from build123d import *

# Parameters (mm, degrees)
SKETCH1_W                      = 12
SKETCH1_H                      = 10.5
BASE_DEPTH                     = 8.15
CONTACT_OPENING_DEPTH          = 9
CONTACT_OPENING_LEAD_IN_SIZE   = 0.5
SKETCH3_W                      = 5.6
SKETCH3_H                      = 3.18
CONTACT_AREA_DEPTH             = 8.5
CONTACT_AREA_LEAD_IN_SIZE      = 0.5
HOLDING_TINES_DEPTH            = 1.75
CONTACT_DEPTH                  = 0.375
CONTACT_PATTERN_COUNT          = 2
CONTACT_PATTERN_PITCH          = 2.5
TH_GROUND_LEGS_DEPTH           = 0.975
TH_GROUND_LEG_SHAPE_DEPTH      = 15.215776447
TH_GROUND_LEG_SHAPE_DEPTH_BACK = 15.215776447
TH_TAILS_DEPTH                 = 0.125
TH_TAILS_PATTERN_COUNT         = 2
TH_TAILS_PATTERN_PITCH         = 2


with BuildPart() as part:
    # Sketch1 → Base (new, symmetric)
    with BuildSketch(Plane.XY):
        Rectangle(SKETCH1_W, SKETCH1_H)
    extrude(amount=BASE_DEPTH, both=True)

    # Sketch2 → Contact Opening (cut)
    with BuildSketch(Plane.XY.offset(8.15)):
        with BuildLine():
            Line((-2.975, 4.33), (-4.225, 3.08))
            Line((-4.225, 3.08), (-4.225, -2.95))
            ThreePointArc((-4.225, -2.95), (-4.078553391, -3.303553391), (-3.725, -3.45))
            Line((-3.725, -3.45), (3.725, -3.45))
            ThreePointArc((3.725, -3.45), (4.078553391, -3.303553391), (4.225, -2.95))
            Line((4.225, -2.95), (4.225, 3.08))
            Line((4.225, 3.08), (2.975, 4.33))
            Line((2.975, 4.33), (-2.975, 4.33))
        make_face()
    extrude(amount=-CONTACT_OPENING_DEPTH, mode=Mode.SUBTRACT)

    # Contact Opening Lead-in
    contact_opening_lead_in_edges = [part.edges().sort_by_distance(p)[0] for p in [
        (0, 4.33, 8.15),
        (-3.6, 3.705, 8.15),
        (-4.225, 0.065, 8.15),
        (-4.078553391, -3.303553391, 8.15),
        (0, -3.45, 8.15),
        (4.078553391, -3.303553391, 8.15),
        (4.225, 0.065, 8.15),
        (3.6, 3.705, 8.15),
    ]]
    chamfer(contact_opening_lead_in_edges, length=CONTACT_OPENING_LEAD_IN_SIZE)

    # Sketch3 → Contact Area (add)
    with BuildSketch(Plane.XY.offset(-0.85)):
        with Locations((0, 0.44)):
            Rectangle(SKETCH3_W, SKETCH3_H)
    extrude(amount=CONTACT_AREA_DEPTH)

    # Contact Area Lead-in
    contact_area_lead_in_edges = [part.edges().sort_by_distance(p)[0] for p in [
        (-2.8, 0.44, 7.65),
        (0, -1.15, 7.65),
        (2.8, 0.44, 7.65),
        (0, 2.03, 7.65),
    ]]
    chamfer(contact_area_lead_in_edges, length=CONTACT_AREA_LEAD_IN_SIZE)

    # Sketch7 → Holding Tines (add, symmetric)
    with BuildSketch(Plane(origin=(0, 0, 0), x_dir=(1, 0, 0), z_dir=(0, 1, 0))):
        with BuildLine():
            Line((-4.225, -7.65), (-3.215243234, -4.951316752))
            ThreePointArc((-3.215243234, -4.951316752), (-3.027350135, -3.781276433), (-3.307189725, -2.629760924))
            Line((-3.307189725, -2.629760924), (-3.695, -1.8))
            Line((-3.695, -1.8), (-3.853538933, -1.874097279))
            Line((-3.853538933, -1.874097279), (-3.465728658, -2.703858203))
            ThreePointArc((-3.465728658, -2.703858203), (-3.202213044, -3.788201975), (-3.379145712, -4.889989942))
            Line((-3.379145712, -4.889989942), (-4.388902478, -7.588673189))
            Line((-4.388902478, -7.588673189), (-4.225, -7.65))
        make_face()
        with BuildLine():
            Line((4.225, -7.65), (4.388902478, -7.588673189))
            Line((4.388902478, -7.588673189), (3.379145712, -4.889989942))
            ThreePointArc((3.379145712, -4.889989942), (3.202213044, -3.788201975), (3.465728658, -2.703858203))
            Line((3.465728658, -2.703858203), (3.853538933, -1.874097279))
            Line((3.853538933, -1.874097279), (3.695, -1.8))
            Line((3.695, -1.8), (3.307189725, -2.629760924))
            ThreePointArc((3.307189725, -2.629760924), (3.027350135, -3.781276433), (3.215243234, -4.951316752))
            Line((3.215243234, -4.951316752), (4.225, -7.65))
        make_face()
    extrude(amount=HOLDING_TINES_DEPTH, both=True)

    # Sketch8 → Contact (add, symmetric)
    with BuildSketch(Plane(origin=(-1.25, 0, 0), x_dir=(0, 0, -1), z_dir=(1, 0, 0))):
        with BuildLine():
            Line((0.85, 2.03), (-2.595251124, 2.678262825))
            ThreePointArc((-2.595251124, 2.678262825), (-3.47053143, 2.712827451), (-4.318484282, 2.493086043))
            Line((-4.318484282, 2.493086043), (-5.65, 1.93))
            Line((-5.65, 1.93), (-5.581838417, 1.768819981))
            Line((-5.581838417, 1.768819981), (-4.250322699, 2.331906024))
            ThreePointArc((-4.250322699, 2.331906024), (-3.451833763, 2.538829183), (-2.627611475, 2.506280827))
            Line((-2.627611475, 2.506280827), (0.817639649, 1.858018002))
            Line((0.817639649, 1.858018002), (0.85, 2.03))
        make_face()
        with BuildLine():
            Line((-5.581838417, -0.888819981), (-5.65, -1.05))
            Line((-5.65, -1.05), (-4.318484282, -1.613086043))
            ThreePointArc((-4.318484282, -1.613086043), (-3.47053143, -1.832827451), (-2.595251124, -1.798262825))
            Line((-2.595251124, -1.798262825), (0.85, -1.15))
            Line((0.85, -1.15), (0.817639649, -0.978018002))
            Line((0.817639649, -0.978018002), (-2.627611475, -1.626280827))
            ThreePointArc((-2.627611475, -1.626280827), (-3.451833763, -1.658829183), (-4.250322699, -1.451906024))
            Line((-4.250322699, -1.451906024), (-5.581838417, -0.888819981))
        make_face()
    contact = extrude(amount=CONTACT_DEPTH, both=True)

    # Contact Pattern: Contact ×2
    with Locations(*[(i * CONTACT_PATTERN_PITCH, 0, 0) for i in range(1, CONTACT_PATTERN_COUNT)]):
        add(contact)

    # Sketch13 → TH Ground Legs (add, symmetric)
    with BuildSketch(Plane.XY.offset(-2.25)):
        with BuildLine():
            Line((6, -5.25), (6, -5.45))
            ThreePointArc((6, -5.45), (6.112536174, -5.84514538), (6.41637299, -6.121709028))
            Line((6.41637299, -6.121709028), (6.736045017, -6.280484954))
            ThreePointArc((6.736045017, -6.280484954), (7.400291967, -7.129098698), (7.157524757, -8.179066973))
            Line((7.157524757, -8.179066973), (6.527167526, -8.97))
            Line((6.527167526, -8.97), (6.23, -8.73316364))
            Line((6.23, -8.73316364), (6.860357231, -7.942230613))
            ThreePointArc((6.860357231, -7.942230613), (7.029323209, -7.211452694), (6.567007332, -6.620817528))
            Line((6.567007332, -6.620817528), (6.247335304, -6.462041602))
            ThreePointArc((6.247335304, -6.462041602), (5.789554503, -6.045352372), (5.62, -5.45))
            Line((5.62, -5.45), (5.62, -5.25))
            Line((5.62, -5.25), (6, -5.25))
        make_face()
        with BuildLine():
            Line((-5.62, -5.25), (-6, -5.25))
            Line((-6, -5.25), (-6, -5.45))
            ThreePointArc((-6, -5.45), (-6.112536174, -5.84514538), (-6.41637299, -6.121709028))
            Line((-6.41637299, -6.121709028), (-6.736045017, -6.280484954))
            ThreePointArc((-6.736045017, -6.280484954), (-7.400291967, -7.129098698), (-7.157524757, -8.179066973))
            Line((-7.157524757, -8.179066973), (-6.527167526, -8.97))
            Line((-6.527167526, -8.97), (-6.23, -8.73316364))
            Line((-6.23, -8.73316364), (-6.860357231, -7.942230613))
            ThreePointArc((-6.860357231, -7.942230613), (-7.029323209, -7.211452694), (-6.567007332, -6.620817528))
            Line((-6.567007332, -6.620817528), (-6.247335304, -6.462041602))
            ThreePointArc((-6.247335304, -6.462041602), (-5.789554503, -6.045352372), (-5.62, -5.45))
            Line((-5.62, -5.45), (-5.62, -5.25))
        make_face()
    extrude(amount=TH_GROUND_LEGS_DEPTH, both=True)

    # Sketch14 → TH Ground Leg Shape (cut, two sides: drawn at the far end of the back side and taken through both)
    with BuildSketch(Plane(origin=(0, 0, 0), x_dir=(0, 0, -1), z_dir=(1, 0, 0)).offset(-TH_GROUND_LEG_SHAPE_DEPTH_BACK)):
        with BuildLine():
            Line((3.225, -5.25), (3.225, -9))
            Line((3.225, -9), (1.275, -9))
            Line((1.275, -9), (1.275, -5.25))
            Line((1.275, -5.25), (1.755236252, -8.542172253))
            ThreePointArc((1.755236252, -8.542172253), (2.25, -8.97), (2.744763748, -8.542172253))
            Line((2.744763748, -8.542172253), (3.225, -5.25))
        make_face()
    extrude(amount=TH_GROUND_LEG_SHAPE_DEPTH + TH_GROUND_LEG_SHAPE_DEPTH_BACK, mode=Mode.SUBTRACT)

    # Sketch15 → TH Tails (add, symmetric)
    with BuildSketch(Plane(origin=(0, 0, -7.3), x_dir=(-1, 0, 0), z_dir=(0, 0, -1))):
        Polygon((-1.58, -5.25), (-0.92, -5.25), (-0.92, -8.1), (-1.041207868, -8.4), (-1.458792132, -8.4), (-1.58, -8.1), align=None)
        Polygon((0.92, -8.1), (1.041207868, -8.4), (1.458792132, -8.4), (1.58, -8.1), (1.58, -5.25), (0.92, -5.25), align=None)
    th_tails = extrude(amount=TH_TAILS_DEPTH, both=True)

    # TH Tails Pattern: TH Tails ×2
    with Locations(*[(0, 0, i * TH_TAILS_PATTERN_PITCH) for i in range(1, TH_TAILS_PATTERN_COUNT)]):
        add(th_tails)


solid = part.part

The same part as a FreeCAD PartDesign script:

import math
import FreeCAD as App
import Part
import Sketcher
from FreeCAD import Vector
Q = App.Units.Quantity


def edges_at(feature, points):
    """Names of the edges that pass closest to the given points."""
    edges = feature.Shape.Edges
    near = lambda p: min(range(len(edges)), key=lambda i: edges[i].distToShape(Part.Vertex(*p))[0])
    return sorted({f"Edge{near(p) + 1}" for p in points})


def add_polygon(sketch, points):
    """Adds a closed chain of lines whose ends are joined by coincident constraints."""
    first, n = sketch.GeometryCount, len(points)
    for a, b in zip(points, points[1:] + points[:1]):
        sketch.addGeometry(Part.LineSegment(App.Vector(*a, 0), App.Vector(*b, 0)), False)
    for i in range(n):
        sketch.addConstraint(Sketcher.Constraint("Coincident", first + i, 2, first + (i + 1) % n, 1))

doc = App.newDocument("Part")
body = doc.addObject("PartDesign::Body", "Body")

# Sketch on XY plane
sketch1 = body.newObject("Sketcher::SketchObject", "Sketch")
sketch1.AttachmentSupport = (doc.getObject("XY_Plane"), [""])
sketch1.MapMode = "FlatFace"
add_polygon(sketch1, [(-6, 5), (-6, -5), (6, -5), (6, 5)])  # lines 0-3
sketch1.addConstraint([
    Sketcher.Constraint("Vertical", 0),
    Sketcher.Constraint("Horizontal", 1),
    Sketcher.Constraint("Vertical", 2),
    Sketcher.Constraint("Horizontal", 3),
    Sketcher.Constraint("Symmetric", 0, 2, 2, 2, -1, 1),
    Sketcher.Constraint("DistanceX", 1, 1, 1, 2, Q("12 mm")),
    Sketcher.Constraint("DistanceY", 0, 2, 0, 1, Q("10.5 mm")),
])
pad1 = body.newObject("PartDesign::Pad", "Pad")
pad1.Profile = sketch1
pad1.Length = 16.3
pad1.Midplane = True

# Sketch on XY plane
sketch2 = body.newObject("Sketcher::SketchObject", "Sketch001")
sketch2.AttachmentSupport = (doc.getObject("XY_Plane"), [""])
sketch2.MapMode = "FlatFace"
sketch2.AttachmentOffset = App.Placement(Vector(0, 0, 8.15), App.Rotation())
sketch2.addGeometry([
    Part.LineSegment(Vector(-2.98, 4.33, 0), Vector(-4.22, 3.08, 0)),  # 0
    Part.LineSegment(Vector(-4.22, 3.08, 0), Vector(-4.22, -2.95, 0)),  # 1
    Part.ArcOfCircle(Part.Circle(Vector(-3.73, -2.95, 0), Vector(0, 0, 1), 0.5), math.radians(180), math.radians(270)),  # 2
    Part.LineSegment(Vector(-3.73, -3.45, 0), Vector(3.73, -3.45, 0)),  # 3
    Part.ArcOfCircle(Part.Circle(Vector(3.73, -2.95, 0), Vector(0, 0, 1), 0.5), math.radians(-90), math.radians(0)),  # 4
    Part.LineSegment(Vector(4.22, -2.95, 0), Vector(4.22, 3.08, 0)),  # 5
    Part.LineSegment(Vector(4.22, 3.08, 0), Vector(2.98, 4.33, 0)),  # 6
    Part.LineSegment(Vector(2.98, 4.33, 0), Vector(-2.98, 4.33, 0)),  # 7
], False)
sketch2.addConstraint([
    Sketcher.Constraint("Coincident", 0, 2, 1, 1),
    Sketcher.Constraint("Tangent", 1, 2, 2, 1),
    Sketcher.Constraint("Tangent", 2, 2, 3, 1),
    Sketcher.Constraint("Tangent", 3, 2, 4, 1),
    Sketcher.Constraint("Tangent", 4, 2, 5, 1),
    Sketcher.Constraint("Coincident", 5, 2, 6, 1),
    Sketcher.Constraint("Coincident", 6, 2, 7, 1),
    Sketcher.Constraint("Coincident", 7, 2, 0, 1),
    Sketcher.Constraint("Vertical", 1),
    Sketcher.Constraint("Horizontal", 3),
    Sketcher.Constraint("Vertical", 5),
    Sketcher.Constraint("Horizontal", 7),
    Sketcher.Constraint("Equal", 2, 4),
    Sketcher.Constraint("Symmetric", 0, 2, 5, 2, -2),
    Sketcher.Constraint("Perpendicular", 0, 6),
    Sketcher.Constraint("Equal", 0, 6),
    Sketcher.Constraint("Radius", 2, Q("0.5 mm")),
    Sketcher.Constraint("DistanceX", 3, 1, 3, 2, Q("7.45 mm")),
    Sketcher.Constraint("DistanceX", 7, 2, 7, 1, Q("5.95 mm")),
    Sketcher.Constraint("DistanceY", 1, 2, 1, 1, Q("6.03 mm")),
    Sketcher.Constraint("DistanceY", 2, 3, -1, 1, Q("2.95 mm")),
])
pocket1 = body.newObject("PartDesign::Pocket", "Pocket")
pocket1.Profile = sketch2
pocket1.Length = 9
doc.recompute()

chamfer = body.newObject("PartDesign::Chamfer", "Chamfer")
chamfer.Base = (pocket1, edges_at(pocket1, [
    (0, 4.33, 8.15),
    (-3.6, 3.705, 8.15),
    (-4.225, 0.065, 8.15),
    (-4.079, -3.304, 8.15),
    (0, -3.45, 8.15),
    (4.079, -3.304, 8.15),
    (4.225, 0.065, 8.15),
    (3.6, 3.705, 8.15),
]))
chamfer.Size = 0.5

# Sketch on XY plane
sketch3 = body.newObject("Sketcher::SketchObject", "Sketch002")
sketch3.AttachmentSupport = (doc.getObject("XY_Plane"), [""])
sketch3.MapMode = "FlatFace"
sketch3.AttachmentOffset = App.Placement(Vector(0, 0, -0.85), App.Rotation())
add_polygon(sketch3, [(-2.8, 2), (-2.8, -1.1), (2.8, -1.1), (2.8, 2)])  # lines 0-3
sketch3.addConstraint([
    Sketcher.Constraint("Vertical", 0),
    Sketcher.Constraint("Horizontal", 1),
    Sketcher.Constraint("Vertical", 2),
    Sketcher.Constraint("Horizontal", 3),
    Sketcher.Constraint("DistanceX", 1, 1, 1, 2, Q("5.6 mm")),
    Sketcher.Constraint("DistanceY", 0, 2, 0, 1, Q("3.18 mm")),
    Sketcher.Constraint("DistanceX", 0, 2, -1, 1, Q("2.8 mm")),
    Sketcher.Constraint("DistanceY", 0, 2, -1, 1, Q("1.15 mm")),
])
pad2 = body.newObject("PartDesign::Pad", "Pad001")
pad2.Profile = sketch3
pad2.Length = 8.5
doc.recompute()

chamfer2 = body.newObject("PartDesign::Chamfer", "Chamfer001")
chamfer2.Base = (pad2, edges_at(pad2, [
    (-2.8, 0.44, 7.65),
    (0, -1.15, 7.65),
    (2.8, 0.44, 7.65),
    (0, 2.03, 7.65),
]))
chamfer2.Size = 0.5

# Sketch on XZ plane
sketch4 = body.newObject("Sketcher::SketchObject", "Sketch003")
sketch4.AttachmentSupport = (doc.getObject("XZ_Plane"), [""])
sketch4.MapMode = "FlatFace"
sketch4.addGeometry([
    Part.LineSegment(Vector(-4.22, 7.65, 0), Vector(-3.22, 4.95, 0)),  # 0
    Part.ArcOfCircle(Part.Circle(Vector(-6.03, 3.9, 0), Vector(0, 0, 1), 3), math.radians(-25), math.radians(21)),  # 1
    Part.LineSegment(Vector(-3.31, 2.63, 0), Vector(-3.69, 1.8, 0)),  # 2
    Part.LineSegment(Vector(-3.69, 1.8, 0), Vector(-3.85, 1.87, 0)),  # 3
    Part.LineSegment(Vector(-3.85, 1.87, 0), Vector(-3.47, 2.7, 0)),  # 4
    Part.ArcOfCircle(Part.Circle(Vector(-6.03, 3.9, 0), Vector(0, 0, 1), 2.83), math.radians(-25), math.radians(21)),  # 5
    Part.LineSegment(Vector(-3.38, 4.89, 0), Vector(-4.39, 7.59, 0)),  # 6
    Part.LineSegment(Vector(-4.39, 7.59, 0), Vector(-4.22, 7.65, 0)),  # 7
    Part.LineSegment(Vector(4.22, 7.65, 0), Vector(4.39, 7.59, 0)),  # 8
    Part.LineSegment(Vector(4.39, 7.59, 0), Vector(3.38, 4.89, 0)),  # 9
    Part.ArcOfCircle(Part.Circle(Vector(6.03, 3.9, 0), Vector(0, 0, 1), 2.83), math.radians(159), math.radians(205)),  # 10
    Part.LineSegment(Vector(3.47, 2.7, 0), Vector(3.85, 1.87, 0)),  # 11
    Part.LineSegment(Vector(3.85, 1.87, 0), Vector(3.69, 1.8, 0)),  # 12
    Part.LineSegment(Vector(3.69, 1.8, 0), Vector(3.31, 2.63, 0)),  # 13
    Part.ArcOfCircle(Part.Circle(Vector(6.03, 3.9, 0), Vector(0, 0, 1), 3), math.radians(159), math.radians(205)),  # 14
    Part.LineSegment(Vector(3.22, 4.95, 0), Vector(4.22, 7.65, 0)),  # 15
], False)
sketch4.addConstraint([
    Sketcher.Constraint("Tangent", 0, 2, 1, 2),
    Sketcher.Constraint("Tangent", 1, 1, 2, 1),
    Sketcher.Constraint("Coincident", 2, 2, 3, 1),
    Sketcher.Constraint("Coincident", 3, 2, 4, 1),
    Sketcher.Constraint("Tangent", 4, 2, 5, 1),
    Sketcher.Constraint("Tangent", 5, 2, 6, 1),
    Sketcher.Constraint("Coincident", 6, 2, 7, 1),
    Sketcher.Constraint("Coincident", 7, 2, 0, 1),
    Sketcher.Constraint("Coincident", 8, 2, 9, 1),
    Sketcher.Constraint("Tangent", 9, 2, 10, 1),
    Sketcher.Constraint("Tangent", 10, 2, 11, 1),
    Sketcher.Constraint("Coincident", 11, 2, 12, 1),
    Sketcher.Constraint("Coincident", 12, 2, 13, 1),
    Sketcher.Constraint("Tangent", 13, 2, 14, 2),
    Sketcher.Constraint("Tangent", 14, 1, 15, 1),
    Sketcher.Constraint("Coincident", 15, 2, 8, 1),
    Sketcher.Constraint("Coincident", 5, 3, 1, 3),
    Sketcher.Constraint("Coincident", 14, 3, 10, 3),
    Sketcher.Constraint("Equal", 5, 10),
    Sketcher.Constraint("Equal", 1, 14),
    Sketcher.Constraint("Symmetric", 1, 3, 10, 3, -2),
    Sketcher.Constraint("Symmetric", 6, 2, 8, 2, -2),
    Sketcher.Constraint("Symmetric", 3, 2, 11, 2, -2),
    Sketcher.Constraint("Symmetric", 2, 2, 12, 2, -2),
    Sketcher.Constraint("Symmetric", 7, 2, 15, 2, -2),
    Sketcher.Constraint("Perpendicular", 2, 3),
    Sketcher.Constraint("Perpendicular", 3, 4),
    Sketcher.Constraint("Parallel", 0, 6),
    Sketcher.Constraint("Perpendicular", 6, 7),
    Sketcher.Constraint("Radius", 1, Q("3 mm")),
    Sketcher.Constraint("Radius", 5, Q("2.825 mm")),
    Sketcher.Constraint("DistanceY", -1, 1, 1, 3, Q("3.9 mm")),
    Sketcher.Constraint("DistanceY", -1, 1, 2, 2, Q("1.8 mm")),
    Sketcher.Constraint("DistanceX", 1, 3, 7, 2, Q("1.8 mm")),
    Sketcher.Constraint("DistanceY", -1, 1, 7, 2, Q("7.65 mm")),
    Sketcher.Constraint("DistanceX", 1, 3, 10, 3, Q("12.05 mm")),
    Sketcher.Constraint("DistanceX", 1, 3, 2, 2, Q("2.33 mm")),
])
pad3 = body.newObject("PartDesign::Pad", "Pad002")
pad3.Profile = sketch4
pad3.Length = 3.5
pad3.Midplane = True

# Sketch on YZ plane
sketch5 = body.newObject("Sketcher::SketchObject", "Sketch004")
sketch5.AttachmentSupport = (doc.getObject("YZ_Plane"), [""])
sketch5.MapMode = "FlatFace"
sketch5.AttachmentOffset = App.Placement(Vector(0, 0, -1.25), App.Rotation())
sketch5.addGeometry([
    Part.LineSegment(Vector(2.03, -0.85, 0), Vector(2.68, 2.6, 0)),  # 0
    Part.ArcOfCircle(Part.Circle(Vector(-0.27, 3.15, 0), Vector(0, 0, 1), 3), math.radians(-11), math.radians(23)),  # 1
    Part.LineSegment(Vector(2.49, 4.32, 0), Vector(1.93, 5.65, 0)),  # 2
    Part.LineSegment(Vector(1.93, 5.65, 0), Vector(1.77, 5.58, 0)),  # 3
    Part.LineSegment(Vector(1.77, 5.58, 0), Vector(2.33, 4.25, 0)),  # 4
    Part.ArcOfCircle(Part.Circle(Vector(-0.27, 3.15, 0), Vector(0, 0, 1), 2.83), math.radians(-11), math.radians(23)),  # 5
    Part.LineSegment(Vector(2.51, 2.63, 0), Vector(1.86, -0.82, 0)),  # 6
    Part.LineSegment(Vector(1.86, -0.82, 0), Vector(2.03, -0.85, 0)),  # 7
    Part.LineSegment(Vector(-0.89, 5.58, 0), Vector(-1.05, 5.65, 0)),  # 8
    Part.LineSegment(Vector(-1.05, 5.65, 0), Vector(-1.61, 4.32, 0)),  # 9
    Part.ArcOfCircle(Part.Circle(Vector(1.15, 3.15, 0), Vector(0, 0, 1), 3), math.radians(157), math.radians(191)),  # 10
    Part.LineSegment(Vector(-1.8, 2.6, 0), Vector(-1.15, -0.85, 0)),  # 11
    Part.LineSegment(Vector(-1.15, -0.85, 0), Vector(-0.98, -0.82, 0)),  # 12
    Part.LineSegment(Vector(-0.98, -0.82, 0), Vector(-1.63, 2.63, 0)),  # 13
    Part.ArcOfCircle(Part.Circle(Vector(1.15, 3.15, 0), Vector(0, 0, 1), 2.83), math.radians(157), math.radians(191)),  # 14
    Part.LineSegment(Vector(-1.45, 4.25, 0), Vector(-0.89, 5.58, 0)),  # 15
], False)
sketch5.addConstraint([
    Sketcher.Constraint("Tangent", 0, 2, 1, 1),
    Sketcher.Constraint("Tangent", 1, 2, 2, 1),
    Sketcher.Constraint("Coincident", 2, 2, 3, 1),
    Sketcher.Constraint("Coincident", 3, 2, 4, 1),
    Sketcher.Constraint("Tangent", 4, 2, 5, 2),
    Sketcher.Constraint("Tangent", 5, 1, 6, 1),
    Sketcher.Constraint("Coincident", 6, 2, 7, 1),
    Sketcher.Constraint("Coincident", 7, 2, 0, 1),
    Sketcher.Constraint("Coincident", 8, 2, 9, 1),
    Sketcher.Constraint("Tangent", 9, 2, 10, 1),
    Sketcher.Constraint("Tangent", 10, 2, 11, 1),
    Sketcher.Constraint("Coincident", 11, 2, 12, 1),
    Sketcher.Constraint("Coincident", 12, 2, 13, 1),
    Sketcher.Constraint("Tangent", 13, 2, 14, 2),
    Sketcher.Constraint("Tangent", 14, 1, 15, 1),
    Sketcher.Constraint("Coincident", 15, 2, 8, 1),
    Sketcher.Constraint("Coincident", 5, 3, 1, 3),
    Sketcher.Constraint("Coincident", 14, 3, 10, 3),
    Sketcher.Constraint("Equal", 1, 10),
    Sketcher.Constraint("Equal", 5, 14),
    Sketcher.Constraint("Perpendicular", 2, 3),
    Sketcher.Constraint("Perpendicular", 3, 4),
    Sketcher.Constraint("Parallel", 0, 6),
    Sketcher.Constraint("Perpendicular", 6, 7),
    Sketcher.Constraint("Perpendicular", 8, 9),
    Sketcher.Constraint("Perpendicular", 11, 12),
    Sketcher.Constraint("Perpendicular", 12, 13),
    Sketcher.Constraint("Parallel", 9, 15),
    Sketcher.Constraint("Horizontal", 5, 3, 10, 3),
    Sketcher.Constraint("Horizontal", 2, 2, 8, 2),
    Sketcher.Constraint("Horizontal", 1, 2, 9, 2),
    Sketcher.Constraint("Horizontal", 0, 2, 10, 2),
    Sketcher.Constraint("Horizontal", 7, 2, 11, 2),
    Sketcher.Constraint("Radius", 1, Q("3 mm")),
    Sketcher.Constraint("Radius", 5, Q("2.825 mm")),
    Sketcher.Constraint("DistanceY", 7, 2, 14, 3, Q("4 mm")),
    Sketcher.Constraint("DistanceY", 14, 3, 2, 2, Q("2.5 mm")),
    Sketcher.Constraint("DistanceX", 1, 3, 2, 2, Q("2.2 mm")),
    Sketcher.Constraint("DistanceX", 1, 3, -1, 1, Q("0.27 mm")),
    Sketcher.Constraint("DistanceY", -1, 1, 1, 3, Q("3.15 mm")),
    Sketcher.Constraint("DistanceX", -1, 1, 10, 3, Q("1.15 mm")),
    Sketcher.Constraint("DistanceX", -1, 1, 7, 2, Q("2.03 mm")),
])
pad4 = body.newObject("PartDesign::Pad", "Pad003")
pad4.Profile = sketch5
pad4.Length = 0.75
pad4.Midplane = True
doc.recompute()

linearpattern = body.newObject("PartDesign::LinearPattern", "LinearPattern")
linearpattern.Originals = [pad4]
linearpattern.Direction = (doc.getObject("X_Axis"), [""])
linearpattern.Mode = "offset"
linearpattern.Offset = 2.5
linearpattern.Occurrences = 2
body.Tip = linearpattern

# Sketch on XY plane
sketch6 = body.newObject("Sketcher::SketchObject", "Sketch005")
sketch6.AttachmentSupport = (doc.getObject("XY_Plane"), [""])
sketch6.MapMode = "FlatFace"
sketch6.AttachmentOffset = App.Placement(Vector(0, 0, -2.25), App.Rotation())
sketch6.addGeometry([
    Part.LineSegment(Vector(6, -5.45, 0), Vector(6, -5.25, 0)),  # 0
    Part.LineSegment(Vector(6, -5.25, 0), Vector(5.62, -5.25, 0)),  # 1
    Part.LineSegment(Vector(5.62, -5.25, 0), Vector(5.62, -5.45, 0)),  # 2
    Part.ArcOfCircle(Part.Circle(Vector(6.75, -5.45, 0), Vector(0, 0, 1), 1.13), math.radians(-180), math.radians(-116)),  # 3
    Part.LineSegment(Vector(6.25, -6.46, 0), Vector(6.57, -6.62, 0)),  # 4
    Part.ArcOfCircle(Part.Circle(Vector(6.18, -7.4, 0), Vector(0, 0, 1), 0.87), math.radians(-39), math.radians(64)),  # 5
    Part.LineSegment(Vector(6.86, -7.94, 0), Vector(6.23, -8.73, 0)),  # 6
    Part.LineSegment(Vector(6.23, -8.73, 0), Vector(6.53, -8.97, 0)),  # 7
    Part.LineSegment(Vector(6.53, -8.97, 0), Vector(7.16, -8.18, 0)),  # 8
    Part.ArcOfCircle(Part.Circle(Vector(6.18, -7.4, 0), Vector(0, 0, 1), 1.25), math.radians(-39), math.radians(64)),  # 9
    Part.LineSegment(Vector(6.74, -6.28, 0), Vector(6.42, -6.12, 0)),  # 10
    Part.ArcOfCircle(Part.Circle(Vector(6.75, -5.45, 0), Vector(0, 0, 1), 0.75), math.radians(180), math.radians(244)),  # 11
    Part.LineSegment(Vector(-5.62, -5.25, 0), Vector(-6, -5.25, 0)),  # 12
    Part.LineSegment(Vector(-6, -5.25, 0), Vector(-6, -5.45, 0)),  # 13
    Part.ArcOfCircle(Part.Circle(Vector(-6.75, -5.45, 0), Vector(0, 0, 1), 0.75), math.radians(-64), math.radians(0)),  # 14
    Part.LineSegment(Vector(-6.42, -6.12, 0), Vector(-6.74, -6.28, 0)),  # 15
    Part.ArcOfCircle(Part.Circle(Vector(-6.18, -7.4, 0), Vector(0, 0, 1), 1.25), math.radians(116), math.radians(219)),  # 16
    Part.LineSegment(Vector(-7.16, -8.18, 0), Vector(-6.53, -8.97, 0)),  # 17
    Part.LineSegment(Vector(-6.53, -8.97, 0), Vector(-6.23, -8.73, 0)),  # 18
    Part.LineSegment(Vector(-6.23, -8.73, 0), Vector(-6.86, -7.94, 0)),  # 19
    Part.ArcOfCircle(Part.Circle(Vector(-6.18, -7.4, 0), Vector(0, 0, 1), 0.87), math.radians(116), math.radians(219)),  # 20
    Part.LineSegment(Vector(-6.57, -6.62, 0), Vector(-6.25, -6.46, 0)),  # 21
    Part.ArcOfCircle(Part.Circle(Vector(-6.75, -5.45, 0), Vector(0, 0, 1), 1.13), math.radians(-64), math.radians(0)),  # 22
    Part.LineSegment(Vector(-5.62, -5.45, 0), Vector(-5.62, -5.25, 0)),  # 23
], False)
sketch6.addConstraint([
    Sketcher.Constraint("Coincident", 0, 2, 1, 1),
    Sketcher.Constraint("Coincident", 1, 2, 2, 1),
    Sketcher.Constraint("Tangent", 2, 2, 3, 1),
    Sketcher.Constraint("Tangent", 3, 2, 4, 1),
    Sketcher.Constraint("Tangent", 4, 2, 5, 2),
    Sketcher.Constraint("Tangent", 5, 1, 6, 1),
    Sketcher.Constraint("Coincident", 6, 2, 7, 1),
    Sketcher.Constraint("Coincident", 7, 2, 8, 1),
    Sketcher.Constraint("Tangent", 8, 2, 9, 1),
    Sketcher.Constraint("Tangent", 9, 2, 10, 1),
    Sketcher.Constraint("Tangent", 10, 2, 11, 2),
    Sketcher.Constraint("Tangent", 11, 1, 0, 1),
    Sketcher.Constraint("Coincident", 12, 2, 13, 1),
    Sketcher.Constraint("Tangent", 13, 2, 14, 2),
    Sketcher.Constraint("Tangent", 14, 1, 15, 1),
    Sketcher.Constraint("Tangent", 15, 2, 16, 1),
    Sketcher.Constraint("Tangent", 16, 2, 17, 1),
    Sketcher.Constraint("Coincident", 17, 2, 18, 1),
    Sketcher.Constraint("Coincident", 18, 2, 19, 1),
    Sketcher.Constraint("Tangent", 19, 2, 20, 2),
    Sketcher.Constraint("Tangent", 20, 1, 21, 1),
    Sketcher.Constraint("Tangent", 21, 2, 22, 1),
    Sketcher.Constraint("Tangent", 22, 2, 23, 1),
    Sketcher.Constraint("Coincident", 23, 2, 12, 1),
    Sketcher.Constraint("Vertical", 0),
    Sketcher.Constraint("Horizontal", 1),
    Sketcher.Constraint("Vertical", 2),
    Sketcher.Constraint("Horizontal", 12),
    Sketcher.Constraint("Vertical", 13),
    Sketcher.Constraint("Vertical", 23),
    Sketcher.Constraint("Coincident", 9, 3, 5, 3),
    Sketcher.Constraint("Coincident", 11, 3, 3, 3),
    Sketcher.Constraint("Coincident", 20, 3, 16, 3),
    Sketcher.Constraint("Coincident", 22, 3, 14, 3),
    Sketcher.Constraint("Equal", 11, 14),
    Sketcher.Constraint("Equal", 9, 16),
    Sketcher.Constraint("Equal", 5, 20),
    Sketcher.Constraint("Equal", 3, 22),
    Sketcher.Constraint("Symmetric", 3, 3, 14, 3, -2),
    Sketcher.Constraint("Symmetric", 5, 3, 16, 3, -2),
    Sketcher.Constraint("Symmetric", 7, 2, 17, 2, -2),
    Sketcher.Constraint("Symmetric", 6, 2, 18, 2, -2),
    Sketcher.Constraint("Perpendicular", 6, 7),
    Sketcher.Constraint("Perpendicular", 7, 8),
    Sketcher.Constraint("Parallel", 4, 10),
    Sketcher.Constraint("Horizontal", 1, 2, 12, 2),
    Sketcher.Constraint("Radius", 3, Q("1.13 mm")),
    Sketcher.Constraint("Radius", 5, Q("0.87 mm")),
    Sketcher.Constraint("Radius", 9, Q("1.25 mm")),
    Sketcher.Constraint("DistanceY", 0, 1, 0, 2, Q("0.2 mm")),
    Sketcher.Constraint("DistanceX", -1, 1, 0, 2, Q("6 mm")),
    Sketcher.Constraint("DistanceY", 5, 3, -1, 1, Q("7.4 mm")),
    Sketcher.Constraint("DistanceY", 3, 3, -1, 1, Q("5.45 mm")),
    Sketcher.Constraint("DistanceX", -1, 1, 5, 3, Q("6.18 mm")),
    Sketcher.Constraint("DistanceX", -1, 1, 6, 2, Q("6.23 mm")),
    Sketcher.Constraint("DistanceY", 7, 2, -1, 1, Q("8.97 mm")),
])
pad5 = body.newObject("PartDesign::Pad", "Pad004")
pad5.Profile = sketch6
pad5.Length = 1.95
pad5.Midplane = True

# Sketch on YZ plane
sketch7 = body.newObject("Sketcher::SketchObject", "Sketch006")
sketch7.AttachmentSupport = (doc.getObject("YZ_Plane"), [""])
sketch7.MapMode = "FlatFace"
sketch7.addGeometry([
    Part.LineSegment(Vector(-9, -3.2, 0), Vector(-5.2, -3.2, 0)),  # 0
    Part.LineSegment(Vector(-5.2, -3.2, 0), Vector(-8.5, -2.7, 0)),  # 1
    Part.ArcOfCircle(Part.Circle(Vector(-8.5, -2.2, 0), Vector(0, 0, 1), 0.5), math.radians(98), math.radians(262)),  # 2
    Part.LineSegment(Vector(-8.5, -1.8, 0), Vector(-5.2, -1.3, 0)),  # 3
    Part.LineSegment(Vector(-5.2, -1.3, 0), Vector(-9, -1.3, 0)),  # 4
    Part.LineSegment(Vector(-9, -1.3, 0), Vector(-9, -3.2, 0)),  # 5
], False)
sketch7.addConstraint([
    Sketcher.Constraint("Coincident", 0, 2, 1, 1),
    Sketcher.Constraint("Tangent", 1, 2, 2, 2),
    Sketcher.Constraint("Tangent", 2, 1, 3, 1),
    Sketcher.Constraint("Coincident", 3, 2, 4, 1),
    Sketcher.Constraint("Coincident", 4, 2, 5, 1),
    Sketcher.Constraint("Coincident", 5, 2, 0, 1),
    Sketcher.Constraint("Horizontal", 0),
    Sketcher.Constraint("Horizontal", 4),
    Sketcher.Constraint("Vertical", 5),
    Sketcher.Constraint("Vertical", 1, 2, 2, 1),
    Sketcher.Constraint("Vertical", 0, 2, 3, 2),
    Sketcher.Constraint("Radius", 2, Q("0.5 mm")),
    Sketcher.Constraint("DistanceX", 4, 2, -1, 1, Q("9 mm")),
    Sketcher.Constraint("DistanceX", 0, 1, 0, 2, Q("3.75 mm")),
    Sketcher.Constraint("DistanceY", 5, 2, 5, 1, Q("1.95 mm")),
    Sketcher.Constraint("DistanceX", 2, 3, -1, 1, Q("8.47 mm")),
    Sketcher.Constraint("DistanceY", 2, 3, -1, 1, Q("2.25 mm")),
])
pocket2 = body.newObject("PartDesign::Pocket", "Pocket001")
pocket2.Profile = sketch7
pocket2.Type = "ThroughAll"
pocket2.Midplane = True

# Sketch on XY plane
sketch8 = body.newObject("Sketcher::SketchObject", "Sketch007")
sketch8.AttachmentSupport = (doc.getObject("XY_Plane"), [""])
sketch8.MapMode = "FlatFace"
sketch8.AttachmentOffset = App.Placement(Vector(0, 0, -7.3), App.Rotation())
add_polygon(sketch8, [(0.92, -5.25), (1.58, -5.25), (1.58, -8.1), (1.46, -8.4), (1.04, -8.4), (0.92, -8.1)])  # lines 0-5
add_polygon(sketch8, [(-0.92, -8.1), (-1.04, -8.4), (-1.46, -8.4), (-1.58, -8.1), (-1.58, -5.25), (-0.92, -5.25)])  # lines 6-11
sketch8.addConstraint([
    Sketcher.Constraint("Horizontal", 0),
    Sketcher.Constraint("Vertical", 1),
    Sketcher.Constraint("Horizontal", 3),
    Sketcher.Constraint("Vertical", 5),
    Sketcher.Constraint("Horizontal", 7),
    Sketcher.Constraint("Vertical", 9),
    Sketcher.Constraint("Horizontal", 10),
    Sketcher.Constraint("Vertical", 11),
    Sketcher.Constraint("Symmetric", 3, 2, 6, 2, -2),
    Sketcher.Constraint("Symmetric", 1, 2, 8, 2, -2),
    Sketcher.Constraint("Symmetric", 5, 2, 10, 2, -2),
    Sketcher.Constraint("Parallel", 2, 6),
    Sketcher.Constraint("Parallel", 4, 8),
    Sketcher.Constraint("Horizontal", 1, 2, 4, 2),
    Sketcher.Constraint("Horizontal", 8, 2, 11, 2),
    Sketcher.Constraint("Angle", 2, Q("-112 deg")),
    Sketcher.Constraint("DistanceX", 0, 1, 0, 2, Q("0.66 mm")),
    Sketcher.Constraint("DistanceY", 1, 2, 1, 1, Q("2.85 mm")),
    Sketcher.Constraint("DistanceY", 1, 2, -1, 1, Q("8.1 mm")),
    Sketcher.Constraint("DistanceY", 2, 2, -1, 1, Q("8.4 mm")),
    Sketcher.Constraint("DistanceX", 6, 2, 2, 2, Q("2.5 mm")),
])
pad6 = body.newObject("PartDesign::Pad", "Pad005")
pad6.Profile = sketch8
pad6.Length = 0.25
pad6.Midplane = True
doc.recompute()

linearpattern2 = body.newObject("PartDesign::LinearPattern", "LinearPattern001")
linearpattern2.Originals = [pad6]
linearpattern2.Direction = (doc.getObject("Z_Axis"), [""])
linearpattern2.Mode = "offset"
linearpattern2.Offset = 2
linearpattern2.Occurrences = 2
body.Tip = linearpattern2

doc.recompute()
